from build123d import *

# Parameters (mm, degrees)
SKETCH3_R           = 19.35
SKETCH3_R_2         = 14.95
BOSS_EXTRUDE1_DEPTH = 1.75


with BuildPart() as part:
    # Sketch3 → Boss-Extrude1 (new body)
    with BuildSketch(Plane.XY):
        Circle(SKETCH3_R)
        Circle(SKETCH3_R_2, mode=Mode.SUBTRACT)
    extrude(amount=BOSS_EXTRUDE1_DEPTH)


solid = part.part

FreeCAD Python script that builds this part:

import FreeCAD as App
import Part
import Sketcher
Q = App.Units.Quantity

doc = App.newDocument("Part")
body = doc.addObject("PartDesign::Body", "Body")

# Sketch on XY plane
sketch1 = body.newObject("Sketcher::SketchObject", "Sketch")
sketch1.AttachmentSupport = (doc.getObject("XY_Plane"), [""])
sketch1.MapMode = "FlatFace"
sketch1.addGeometry([
    Part.Circle(App.Vector(0, 0, 0), App.Vector(0, 0, 1), 19.35),
    Part.Circle(App.Vector(0, 0, 0), App.Vector(0, 0, 1), 14.95),
], False)
sketch1.addConstraint([
    Sketcher.Constraint("Coincident", 0, 3, -1, 1),
    Sketcher.Constraint("Coincident", 1, 3, -1, 1),
    Sketcher.Constraint("Diameter", 0, Q("38.7 mm")),
    Sketcher.Constraint("Diameter", 1, Q("29.9 mm")),
])
pad1 = body.newObject("PartDesign::Pad", "Pad")
pad1.Profile = sketch1
pad1.Length = 1.75

doc.recompute()
